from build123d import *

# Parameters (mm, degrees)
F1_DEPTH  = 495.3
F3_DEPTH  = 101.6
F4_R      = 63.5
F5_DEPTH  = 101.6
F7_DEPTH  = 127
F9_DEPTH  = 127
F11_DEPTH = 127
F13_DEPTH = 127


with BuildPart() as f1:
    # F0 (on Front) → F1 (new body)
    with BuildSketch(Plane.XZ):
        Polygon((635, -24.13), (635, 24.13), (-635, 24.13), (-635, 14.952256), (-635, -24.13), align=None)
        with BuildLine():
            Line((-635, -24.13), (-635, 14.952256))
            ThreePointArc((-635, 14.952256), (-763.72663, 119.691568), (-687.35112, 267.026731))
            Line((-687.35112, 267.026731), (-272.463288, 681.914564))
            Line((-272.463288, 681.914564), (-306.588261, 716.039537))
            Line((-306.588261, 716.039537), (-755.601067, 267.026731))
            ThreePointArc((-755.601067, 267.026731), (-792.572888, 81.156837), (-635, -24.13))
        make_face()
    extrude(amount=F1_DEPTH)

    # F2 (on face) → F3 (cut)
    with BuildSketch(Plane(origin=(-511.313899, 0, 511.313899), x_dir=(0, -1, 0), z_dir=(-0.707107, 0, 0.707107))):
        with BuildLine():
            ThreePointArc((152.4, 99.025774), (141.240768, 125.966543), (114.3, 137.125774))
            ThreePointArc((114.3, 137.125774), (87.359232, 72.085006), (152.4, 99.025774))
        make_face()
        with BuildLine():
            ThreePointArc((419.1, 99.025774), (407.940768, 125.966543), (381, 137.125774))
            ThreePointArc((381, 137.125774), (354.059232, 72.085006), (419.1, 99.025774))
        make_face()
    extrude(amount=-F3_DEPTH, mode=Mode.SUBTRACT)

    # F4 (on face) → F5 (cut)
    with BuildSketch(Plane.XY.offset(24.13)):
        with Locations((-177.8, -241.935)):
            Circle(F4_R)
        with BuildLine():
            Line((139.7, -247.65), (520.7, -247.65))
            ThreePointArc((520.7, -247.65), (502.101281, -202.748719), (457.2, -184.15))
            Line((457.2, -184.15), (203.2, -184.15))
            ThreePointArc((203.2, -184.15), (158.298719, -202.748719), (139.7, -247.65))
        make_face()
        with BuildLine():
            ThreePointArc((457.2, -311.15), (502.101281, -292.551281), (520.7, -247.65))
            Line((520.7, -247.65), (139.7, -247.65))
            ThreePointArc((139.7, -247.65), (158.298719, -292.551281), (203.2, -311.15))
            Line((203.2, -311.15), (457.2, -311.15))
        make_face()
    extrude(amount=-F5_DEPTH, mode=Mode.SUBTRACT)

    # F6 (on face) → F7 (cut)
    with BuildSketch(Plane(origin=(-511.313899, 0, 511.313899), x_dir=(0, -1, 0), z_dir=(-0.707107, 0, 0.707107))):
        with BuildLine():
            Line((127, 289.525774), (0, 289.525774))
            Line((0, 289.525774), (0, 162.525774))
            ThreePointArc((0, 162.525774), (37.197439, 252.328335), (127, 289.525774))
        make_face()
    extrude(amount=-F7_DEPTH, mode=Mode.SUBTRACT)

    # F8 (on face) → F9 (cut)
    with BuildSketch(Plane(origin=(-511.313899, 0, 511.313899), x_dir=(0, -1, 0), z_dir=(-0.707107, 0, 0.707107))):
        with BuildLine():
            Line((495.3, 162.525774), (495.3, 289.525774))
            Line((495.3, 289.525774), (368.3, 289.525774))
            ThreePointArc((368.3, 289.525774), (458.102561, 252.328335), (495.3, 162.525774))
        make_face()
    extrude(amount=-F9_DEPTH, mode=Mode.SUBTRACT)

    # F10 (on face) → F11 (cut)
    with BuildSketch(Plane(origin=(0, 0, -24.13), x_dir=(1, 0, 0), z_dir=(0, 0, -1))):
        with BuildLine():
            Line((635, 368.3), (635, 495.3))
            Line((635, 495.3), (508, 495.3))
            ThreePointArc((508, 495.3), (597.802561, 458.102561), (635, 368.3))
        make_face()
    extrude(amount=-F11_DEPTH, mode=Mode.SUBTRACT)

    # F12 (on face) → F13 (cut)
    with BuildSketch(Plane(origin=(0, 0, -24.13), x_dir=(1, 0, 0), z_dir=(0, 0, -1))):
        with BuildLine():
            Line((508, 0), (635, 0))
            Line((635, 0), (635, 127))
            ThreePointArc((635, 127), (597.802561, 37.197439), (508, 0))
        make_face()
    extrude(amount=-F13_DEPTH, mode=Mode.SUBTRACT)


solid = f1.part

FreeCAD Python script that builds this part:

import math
import FreeCAD as App
import Part
import Sketcher

V = App.Vector
Q = App.Units.Quantity

doc = App.newDocument("Part")
body = doc.addObject("PartDesign::Body", "Body")

# Sketch on XZ plane
sketch1 = body.newObject("Sketcher::SketchObject", "Sketch")
sketch1.AttachmentSupport = (doc.getObject("XZ_Plane"), [""])
sketch1.MapMode = "FlatFace"
sketch1.addGeometry(Part.LineSegment(V(635, -24, 0), V(635, 24, 0)), False)
sketch1.addGeometry(Part.LineSegment(V(635, 24, 0), V(-635, 24, 0)), False)
sketch1.addGeometry(Part.LineSegment(V(-635, 24, 0), V(-635, 15, 0)), False)
sketch1.addGeometry(Part.ArcOfCircle(Part.Circle(V(-635, 146, 0), V(0, 0, 1), 131), math.radians(113), math.radians(270)), False)
sketch1.addGeometry(Part.LineSegment(V(-687, 267, 0), V(-272, 682, 0)), False)
sketch1.addGeometry(Part.LineSegment(V(-272, 682, 0), V(-307, 716, 0)), False)
sketch1.addGeometry(Part.LineSegment(V(-307, 716, 0), V(-756, 267, 0)), False)
sketch1.addGeometry(Part.ArcOfCircle(Part.Circle(V(-635, 146, 0), V(0, 0, 1), 171), math.radians(135), math.radians(270)), False)
sketch1.addGeometry(Part.LineSegment(V(-635, -24, 0), V(635, -24, 0)), False)
sketch1.addConstraint(Sketcher.Constraint("Coincident", 0, 2, 1, 1))
sketch1.addConstraint(Sketcher.Constraint("Coincident", 1, 2, 2, 1))
sketch1.addConstraint(Sketcher.Constraint("Coincident", 2, 2, 3, 2))
sketch1.addConstraint(Sketcher.Constraint("Coincident", 3, 1, 4, 1))
sketch1.addConstraint(Sketcher.Constraint("Coincident", 4, 2, 5, 1))
sketch1.addConstraint(Sketcher.Constraint("Coincident", 5, 2, 6, 1))
sketch1.addConstraint(Sketcher.Constraint("Tangent", 6, 2, 7, 1))
sketch1.addConstraint(Sketcher.Constraint("Tangent", 7, 2, 8, 1))
sketch1.addConstraint(Sketcher.Constraint("Coincident", 8, 2, 0, 1))
sketch1.addConstraint(Sketcher.Constraint("Vertical", 0))
sketch1.addConstraint(Sketcher.Constraint("Horizontal", 1))
sketch1.addConstraint(Sketcher.Constraint("Vertical", 2))
sketch1.addConstraint(Sketcher.Constraint("Horizontal", 8))
sketch1.addConstraint(Sketcher.Constraint("Coincident", 7, 3, 3, 3))
sketch1.addConstraint(Sketcher.Constraint("Symmetric", 0, 2, 7, 2, -1, 1))
sketch1.addConstraint(Sketcher.Constraint("Perpendicular", 4, 5))
sketch1.addConstraint(Sketcher.Constraint("Perpendicular", 5, 6))
sketch1.addConstraint(Sketcher.Constraint("Horizontal", 3, 1, 6, 2))
sketch1.addConstraint(Sketcher.Constraint("Vertical", 7, 3, 1, 2))
sketch1.addConstraint(Sketcher.Constraint("DistanceX", 1, 2, 1, 1, Q("50 in")))
sketch1.addConstraint(Sketcher.Constraint("Distance", 6, Q("25 in")))
sketch1.addConstraint(Sketcher.Constraint("DistanceY", 0, 1, 0, 2, Q("1.9 in")))
sketch1.addConstraint(Sketcher.Constraint("Angle", 4, Q("45 deg")))
sketch1.addConstraint(Sketcher.Constraint("Distance", 4, Q("23.1 in")))
sketch1.addConstraint(Sketcher.Constraint("Radius", 3, Q("131.473408 mm")))
pad1 = body.newObject("PartDesign::Pad", "Pad")
pad1.Profile = sketch1
pad1.Length = Q("19.5 in")

# Sketch on an angled plane
sketch2 = body.newObject("Sketcher::SketchObject", "Sketch001")
sketch2.Placement = App.Placement(V(-511.313899, 0, 511.313899), App.Rotation(V(0, -1, 0), V(0.707106781, 0, 0.707106781), V(-0.707106781, 0, 0.707106781), "ZXY"))
sketch2.addGeometry(Part.ArcOfCircle(Part.Circle(V(114, 99, 0), V(0, 0, 1), 38), math.radians(0), math.radians(90)), False)
sketch2.addGeometry(Part.ArcOfCircle(Part.Circle(V(114, 99, 0), V(0, 0, 1), 38), math.radians(90), math.radians(360)), False)
sketch2.addGeometry(Part.ArcOfCircle(Part.Circle(V(381, 99, 0), V(0, 0, 1), 38), math.radians(0), math.radians(90)), False)
sketch2.addGeometry(Part.ArcOfCircle(Part.Circle(V(381, 99, 0), V(0, 0, 1), 38), math.radians(90), math.radians(360)), False)
sketch2.addConstraint(Sketcher.Constraint("Tangent", 0, 1, 1, 2))
sketch2.addConstraint(Sketcher.Constraint("Coincident", 1, 1, 0, 2))
sketch2.addConstraint(Sketcher.Constraint("Tangent", 2, 1, 3, 2))
sketch2.addConstraint(Sketcher.Constraint("Coincident", 3, 1, 2, 2))
sketch2.addConstraint(Sketcher.Constraint("Equal", 1, 2))
sketch2.addConstraint(Sketcher.Constraint("Horizontal", 1, 3, 2, 3))
sketch2.addConstraint(Sketcher.Constraint("Horizontal", 3, 3, 0, 1))
sketch2.addConstraint(Sketcher.Constraint("Horizontal", 0, 1, 2, 1))
sketch2.addConstraint(Sketcher.Constraint("Vertical", 0, 3, 1, 1))
sketch2.addConstraint(Sketcher.Constraint("Vertical", 2, 3, 3, 1))
sketch2.addConstraint(Sketcher.Constraint("Radius", 0, Q("1.5 in")))
sketch2.addConstraint(Sketcher.Constraint("DistanceX", -1, 1, 2, 3, Q("15 in")))
sketch2.addConstraint(Sketcher.Constraint("DistanceX", -1, 1, 0, 1, Q("6 in")))
sketch2.addConstraint(Sketcher.Constraint("DistanceY", -1, 1, 0, 3, Q("99.025774 mm")))
pocket1 = body.newObject("PartDesign::Pocket", "Pocket")
pocket1.Profile = sketch2
pocket1.Length = Q("4 in")

# Sketch on XY plane
sketch3 = body.newObject("Sketcher::SketchObject", "Sketch002")
sketch3.AttachmentSupport = (doc.getObject("XY_Plane"), [""])
sketch3.MapMode = "FlatFace"
sketch3.AttachmentOffset = App.Placement(V(0, 0, 0.95 * 25.4), App.Rotation())
sketch3.addGeometry(Part.Circle(V(-178, -242, 0), V(0, 0, 1), 64), False)
sketch3.addGeometry(Part.ArcOfCircle(Part.Circle(V(457, -248, 0), V(0, 0, 1), 63), math.radians(0), math.radians(90)), False)
sketch3.addGeometry(Part.LineSegment(V(457, -184, 0), V(203, -184, 0)), False)
sketch3.addGeometry(Part.ArcOfCircle(Part.Circle(V(203, -248, 0), V(0, 0, 1), 63), math.radians(90), math.radians(180)), False)
sketch3.addGeometry(Part.ArcOfCircle(Part.Circle(V(203, -248, 0), V(0, 0, 1), 63), math.radians(180), math.radians(270)), False)
sketch3.addGeometry(Part.LineSegment(V(203, -311, 0), V(457, -311, 0)), False)
sketch3.addGeometry(Part.ArcOfCircle(Part.Circle(V(457, -248, 0), V(0, 0, 1), 63), math.radians(-90), math.radians(0)), False)
sketch3.addConstraint(Sketcher.Constraint("Tangent", 1, 2, 2, 1))
sketch3.addConstraint(Sketcher.Constraint("Tangent", 2, 2, 3, 1))
sketch3.addConstraint(Sketcher.Constraint("Tangent", 3, 2, 4, 1))
sketch3.addConstraint(Sketcher.Constraint("Tangent", 4, 2, 5, 1))
sketch3.addConstraint(Sketcher.Constraint("Tangent", 5, 2, 6, 1))
sketch3.addConstraint(Sketcher.Constraint("Tangent", 6, 2, 1, 1))
sketch3.addConstraint(Sketcher.Constraint("Horizontal", 2))
sketch3.addConstraint(Sketcher.Constraint("Horizontal", 5))
sketch3.addConstraint(Sketcher.Constraint("Equal", 0, 1))
sketch3.addConstraint(Sketcher.Constraint("Equal", 1, 3))
sketch3.addConstraint(Sketcher.Constraint("Equal", 3, 4))
sketch3.addConstraint(Sketcher.Constraint("Horizontal", 6, 3, 3, 2))
sketch3.addConstraint(Sketcher.Constraint("Horizontal", 3, 2, 6, 2))
sketch3.addConstraint(Sketcher.Constraint("Diameter", 0, Q("5 in")))
sketch3.addConstraint(Sketcher.Constraint("DistanceX", 2, 2, 2, 1, Q("10 in")))
sketch3.addConstraint(Sketcher.Constraint("DistanceX", 0, 3, -1, 1, Q("7 in")))
sketch3.addConstraint(Sketcher.Constraint("DistanceX", -1, 1, 1, 3, Q("18.0000001 in")))
sketch3.addConstraint(Sketcher.Constraint("DistanceY", 1, 3, -1, 1, Q("9.7499999 in")))
sketch3.addConstraint(Sketcher.Constraint("DistanceY", 0, 3, -1, 1, Q("9.525 in")))
pocket2 = body.newObject("PartDesign::Pocket", "Pocket001")
pocket2.Profile = sketch3
pocket2.Length = Q("4 in")

# Sketch on an angled plane
sketch4 = body.newObject("Sketcher::SketchObject", "Sketch003")
sketch4.Placement = App.Placement(V(-511.313899, 0, 511.313899), App.Rotation(V(0, -1, 0), V(0.707106781, 0, 0.707106781), V(-0.707106781, 0, 0.707106781), "ZXY"))
sketch4.addGeometry(Part.LineSegment(V(127, 290, 0), V(0, 290, 0)), False)
sketch4.addGeometry(Part.LineSegment(V(0, 290, 0), V(0, 163, 0)), False)
sketch4.addGeometry(Part.ArcOfCircle(Part.Circle(V(127, 163, 0), V(0, 0, 1), 127), math.radians(90), math.radians(180)), False)
sketch4.addConstraint(Sketcher.Constraint("Coincident", 0, 2, 1, 1))
sketch4.addConstraint(Sketcher.Constraint("Tangent", 1, 2, 2, 2))
sketch4.addConstraint(Sketcher.Constraint("Tangent", 2, 1, 0, 1))
sketch4.addConstraint(Sketcher.Constraint("Horizontal", 0))
sketch4.addConstraint(Sketcher.Constraint("Vertical", 1))
sketch4.addConstraint(Sketcher.Constraint("PointOnObject", 0, 2, -2))
sketch4.addConstraint(Sketcher.Constraint("Radius", 2, Q("5 in")))
sketch4.addConstraint(Sketcher.Constraint("DistanceY", -1, 1, 2, 3, Q("162.525773 mm")))
pocket3 = body.newObject("PartDesign::Pocket", "Pocket002")
pocket3.Profile = sketch4
pocket3.Length = Q("5 in")

# Sketch on an angled plane
sketch5 = body.newObject("Sketcher::SketchObject", "Sketch004")
sketch5.Placement = App.Placement(V(-511.313899, 0, 511.313899), App.Rotation(V(0, -1, 0), V(0.707106781, 0, 0.707106781), V(-0.707106781, 0, 0.707106781), "ZXY"))
sketch5.addGeometry(Part.LineSegment(V(495, 163, 0), V(495, 290, 0)), False)
sketch5.addGeometry(Part.LineSegment(V(495, 290, 0), V(368, 290, 0)), False)
sketch5.addGeometry(Part.ArcOfCircle(Part.Circle(V(368, 163, 0), V(0, 0, 1), 127), math.radians(0), math.radians(90)), False)
sketch5.addConstraint(Sketcher.Constraint("Coincident", 0, 2, 1, 1))
sketch5.addConstraint(Sketcher.Constraint("Tangent", 1, 2, 2, 2))
sketch5.addConstraint(Sketcher.Constraint("Tangent", 2, 1, 0, 1))
sketch5.addConstraint(Sketcher.Constraint("Vertical", 0))
sketch5.addConstraint(Sketcher.Constraint("Horizontal", 1))
sketch5.addConstraint(Sketcher.Constraint("Radius", 2, Q("5 in")))
sketch5.addConstraint(Sketcher.Constraint("DistanceX", -1, 1, 2, 3, Q("14.5 in")))
sketch5.addConstraint(Sketcher.Constraint("DistanceY", -1, 1, 2, 3, Q("162.525773 mm")))
pocket4 = body.newObject("PartDesign::Pocket", "Pocket003")
pocket4.Profile = sketch5
pocket4.Length = Q("5 in")

# Sketch on XY plane
sketch6 = body.newObject("Sketcher::SketchObject", "Sketch005")
sketch6.AttachmentSupport = (doc.getObject("XY_Plane"), [""])
sketch6.MapMode = "FlatFace"
sketch6.AttachmentOffset = App.Placement(V(0, 0, -0.95 * 25.4), App.Rotation())
sketch6.addGeometry(Part.LineSegment(V(635, -368, 0), V(635, -495, 0)), False)
sketch6.addGeometry(Part.LineSegment(V(635, -495, 0), V(508, -495, 0)), False)
sketch6.addGeometry(Part.ArcOfCircle(Part.Circle(V(508, -368, 0), V(0, 0, 1), 127), math.radians(-90), math.radians(0)), False)
sketch6.addConstraint(Sketcher.Constraint("Coincident", 0, 2, 1, 1))
sketch6.addConstraint(Sketcher.Constraint("Tangent", 1, 2, 2, 1))
sketch6.addConstraint(Sketcher.Constraint("Tangent", 2, 2, 0, 1))
sketch6.addConstraint(Sketcher.Constraint("Vertical", 0))
sketch6.addConstraint(Sketcher.Constraint("Horizontal", 1))
sketch6.addConstraint(Sketcher.Constraint("Radius", 2, Q("5 in")))
sketch6.addConstraint(Sketcher.Constraint("DistanceX", -1, 1, 2, 3, Q("20 in")))
sketch6.addConstraint(Sketcher.Constraint("DistanceY", 2, 3, -1, 1, Q("14.5 in")))
pocket5 = body.newObject("PartDesign::Pocket", "Pocket004")
pocket5.Profile = sketch6
pocket5.Length = Q("5 in")
pocket5.Reversed = True

# Sketch on XY plane
sketch7 = body.newObject("Sketcher::SketchObject", "Sketch006")
sketch7.AttachmentSupport = (doc.getObject("XY_Plane"), [""])
sketch7.MapMode = "FlatFace"
sketch7.AttachmentOffset = App.Placement(V(0, 0, -0.95 * 25.4), App.Rotation())
sketch7.addGeometry(Part.LineSegment(V(508, 0, 0), V(635, 0, 0)), False)
sketch7.addGeometry(Part.LineSegment(V(635, 0, 0), V(635, -127, 0)), False)
sketch7.addGeometry(Part.ArcOfCircle(Part.Circle(V(508, -127, 0), V(0, 0, 1), 127), math.radians(0), math.radians(90)), False)
sketch7.addConstraint(Sketcher.Constraint("Coincident", 0, 2, 1, 1))
sketch7.addConstraint(Sketcher.Constraint("Tangent", 1, 2, 2, 1))
sketch7.addConstraint(Sketcher.Constraint("Tangent", 2, 2, 0, 1))
sketch7.addConstraint(Sketcher.Constraint("Horizontal", 0))
sketch7.addConstraint(Sketcher.Constraint("Vertical", 1))
sketch7.addConstraint(Sketcher.Constraint("PointOnObject", 0, 2, -1))
sketch7.addConstraint(Sketcher.Constraint("Radius", 2, Q("5 in")))
sketch7.addConstraint(Sketcher.Constraint("DistanceX", -1, 1, 2, 3, Q("20 in")))
pocket6 = body.newObject("PartDesign::Pocket", "Pocket005")
pocket6.Profile = sketch7
pocket6.Length = Q("5 in")
pocket6.Reversed = True

doc.recompute()
